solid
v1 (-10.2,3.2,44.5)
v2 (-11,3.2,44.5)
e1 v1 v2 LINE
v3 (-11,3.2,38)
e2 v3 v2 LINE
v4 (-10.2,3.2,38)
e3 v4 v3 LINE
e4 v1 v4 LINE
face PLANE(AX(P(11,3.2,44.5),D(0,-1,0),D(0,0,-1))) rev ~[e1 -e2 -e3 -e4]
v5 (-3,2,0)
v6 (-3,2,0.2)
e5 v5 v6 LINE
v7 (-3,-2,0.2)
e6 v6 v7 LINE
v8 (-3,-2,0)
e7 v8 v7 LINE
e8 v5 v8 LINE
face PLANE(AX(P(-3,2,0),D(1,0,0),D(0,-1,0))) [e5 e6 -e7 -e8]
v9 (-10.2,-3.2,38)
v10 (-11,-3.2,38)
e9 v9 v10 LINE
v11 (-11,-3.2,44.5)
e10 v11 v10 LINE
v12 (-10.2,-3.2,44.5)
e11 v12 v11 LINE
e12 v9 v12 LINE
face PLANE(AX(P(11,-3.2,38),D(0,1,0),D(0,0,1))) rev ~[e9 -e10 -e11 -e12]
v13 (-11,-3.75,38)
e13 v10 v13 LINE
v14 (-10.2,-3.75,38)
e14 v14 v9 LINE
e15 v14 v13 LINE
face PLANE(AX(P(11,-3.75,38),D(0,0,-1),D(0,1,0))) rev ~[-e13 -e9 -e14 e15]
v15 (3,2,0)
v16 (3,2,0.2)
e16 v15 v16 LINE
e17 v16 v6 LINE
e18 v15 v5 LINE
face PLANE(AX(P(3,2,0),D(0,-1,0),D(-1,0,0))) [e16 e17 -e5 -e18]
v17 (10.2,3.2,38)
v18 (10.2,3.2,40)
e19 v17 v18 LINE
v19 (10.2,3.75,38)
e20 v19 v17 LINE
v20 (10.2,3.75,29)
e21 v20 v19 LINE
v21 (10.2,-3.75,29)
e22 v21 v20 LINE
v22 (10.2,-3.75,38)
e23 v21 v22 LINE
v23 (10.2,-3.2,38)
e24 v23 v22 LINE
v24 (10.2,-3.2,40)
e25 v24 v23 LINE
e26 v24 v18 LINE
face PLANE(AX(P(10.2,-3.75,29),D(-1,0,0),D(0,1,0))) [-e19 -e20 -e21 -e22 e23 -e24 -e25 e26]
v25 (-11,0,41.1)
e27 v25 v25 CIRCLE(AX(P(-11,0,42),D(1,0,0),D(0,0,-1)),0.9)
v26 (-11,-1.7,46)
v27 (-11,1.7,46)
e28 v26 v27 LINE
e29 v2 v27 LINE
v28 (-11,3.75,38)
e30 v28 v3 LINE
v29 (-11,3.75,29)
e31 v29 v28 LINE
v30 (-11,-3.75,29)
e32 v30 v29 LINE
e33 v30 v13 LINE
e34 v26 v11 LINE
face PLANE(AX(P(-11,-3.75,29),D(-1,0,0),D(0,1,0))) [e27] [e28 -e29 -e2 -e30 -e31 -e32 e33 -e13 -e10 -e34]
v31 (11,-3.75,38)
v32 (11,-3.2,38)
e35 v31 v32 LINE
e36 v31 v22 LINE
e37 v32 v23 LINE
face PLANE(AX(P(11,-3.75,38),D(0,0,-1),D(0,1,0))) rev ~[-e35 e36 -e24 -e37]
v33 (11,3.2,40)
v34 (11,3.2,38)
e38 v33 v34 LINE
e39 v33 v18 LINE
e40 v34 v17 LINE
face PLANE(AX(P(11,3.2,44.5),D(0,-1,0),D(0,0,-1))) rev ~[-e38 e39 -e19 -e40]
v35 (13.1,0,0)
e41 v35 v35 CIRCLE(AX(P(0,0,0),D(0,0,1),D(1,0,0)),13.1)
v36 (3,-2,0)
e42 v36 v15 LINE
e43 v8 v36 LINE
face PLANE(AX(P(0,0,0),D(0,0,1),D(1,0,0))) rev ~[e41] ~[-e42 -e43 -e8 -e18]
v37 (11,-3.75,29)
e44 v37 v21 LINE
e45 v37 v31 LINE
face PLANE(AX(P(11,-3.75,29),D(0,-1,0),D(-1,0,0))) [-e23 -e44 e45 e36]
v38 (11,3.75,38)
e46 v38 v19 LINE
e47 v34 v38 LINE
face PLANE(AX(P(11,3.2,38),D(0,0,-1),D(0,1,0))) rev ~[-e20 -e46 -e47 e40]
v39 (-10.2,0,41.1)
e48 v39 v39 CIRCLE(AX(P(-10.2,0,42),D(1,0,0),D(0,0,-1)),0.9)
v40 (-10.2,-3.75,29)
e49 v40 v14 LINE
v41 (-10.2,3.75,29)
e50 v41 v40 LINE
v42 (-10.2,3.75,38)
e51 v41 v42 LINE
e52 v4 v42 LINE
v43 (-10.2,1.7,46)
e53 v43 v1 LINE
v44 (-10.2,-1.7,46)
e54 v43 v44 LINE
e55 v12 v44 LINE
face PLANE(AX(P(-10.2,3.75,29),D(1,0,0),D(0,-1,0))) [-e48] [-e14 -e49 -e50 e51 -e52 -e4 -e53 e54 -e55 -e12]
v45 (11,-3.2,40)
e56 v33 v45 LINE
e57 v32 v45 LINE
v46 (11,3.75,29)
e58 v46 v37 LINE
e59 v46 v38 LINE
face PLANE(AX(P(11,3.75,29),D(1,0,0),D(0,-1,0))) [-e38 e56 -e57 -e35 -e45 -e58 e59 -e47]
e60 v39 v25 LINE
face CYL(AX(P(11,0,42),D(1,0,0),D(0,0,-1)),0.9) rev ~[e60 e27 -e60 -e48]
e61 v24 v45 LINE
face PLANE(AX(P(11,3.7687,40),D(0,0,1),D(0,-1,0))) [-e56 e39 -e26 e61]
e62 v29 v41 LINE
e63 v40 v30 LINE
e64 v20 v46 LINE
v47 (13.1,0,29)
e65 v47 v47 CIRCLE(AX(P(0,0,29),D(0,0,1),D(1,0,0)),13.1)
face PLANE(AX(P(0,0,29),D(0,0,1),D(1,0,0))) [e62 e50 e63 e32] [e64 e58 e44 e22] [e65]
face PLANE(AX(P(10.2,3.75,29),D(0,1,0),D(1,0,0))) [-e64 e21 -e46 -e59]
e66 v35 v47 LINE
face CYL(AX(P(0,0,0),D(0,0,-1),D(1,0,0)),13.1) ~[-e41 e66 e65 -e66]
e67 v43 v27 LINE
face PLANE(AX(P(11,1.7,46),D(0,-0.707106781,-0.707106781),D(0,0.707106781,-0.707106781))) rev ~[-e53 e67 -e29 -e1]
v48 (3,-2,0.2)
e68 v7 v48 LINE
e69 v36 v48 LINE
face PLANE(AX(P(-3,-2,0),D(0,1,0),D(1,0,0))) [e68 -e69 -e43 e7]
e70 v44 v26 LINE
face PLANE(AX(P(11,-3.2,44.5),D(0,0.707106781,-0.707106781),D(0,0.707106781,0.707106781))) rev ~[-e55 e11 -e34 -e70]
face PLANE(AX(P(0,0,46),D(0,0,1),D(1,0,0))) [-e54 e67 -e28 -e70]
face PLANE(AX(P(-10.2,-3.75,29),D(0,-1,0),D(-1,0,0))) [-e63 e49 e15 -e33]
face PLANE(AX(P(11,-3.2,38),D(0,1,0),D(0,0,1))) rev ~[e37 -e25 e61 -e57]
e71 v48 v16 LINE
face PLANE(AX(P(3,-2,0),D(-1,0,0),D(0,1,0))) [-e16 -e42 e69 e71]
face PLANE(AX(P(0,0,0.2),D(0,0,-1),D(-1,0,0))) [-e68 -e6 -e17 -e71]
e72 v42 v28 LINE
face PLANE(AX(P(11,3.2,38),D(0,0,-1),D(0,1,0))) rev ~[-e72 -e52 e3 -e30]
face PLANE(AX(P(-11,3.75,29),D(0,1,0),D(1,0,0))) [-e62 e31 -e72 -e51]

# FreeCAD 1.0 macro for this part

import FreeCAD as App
import Part
import Sketcher
Q = App.Units.Quantity


def add_polygon(sketch, points):
    """Adds a closed chain of lines whose ends are joined by coincident constraints."""
    first, n = sketch.GeometryCount, len(points)
    for a, b in zip(points, points[1:] + points[:1]):
        sketch.addGeometry(Part.LineSegment(App.Vector(*a, 0), App.Vector(*b, 0)), False)
    for i in range(n):
        sketch.addConstraint(Sketcher.Constraint("Coincident", first + i, 2, first + (i + 1) % n, 1))

doc = App.newDocument("Part")
body = doc.addObject("PartDesign::Body", "Body")

# Sketch on XY plane
sketch1 = doc.addObject("Sketcher::SketchObject", "Sketch")
body.addObject(sketch1)
sketch1.AttachmentSupport = (doc.XY_Plane, [""])
sketch1.MapMode = "FlatFace"
sketch1.addGeometry(Part.Circle(App.Vector(0, 0, 0), App.Vector(0, 0, 1), 13), False)
sketch1.addConstraint([
    Sketcher.Constraint("Coincident", 0, 3, -1, 1),
    Sketcher.Constraint("Diameter", 0, Q("26.2 mm")),
])
pad1 = doc.addObject("PartDesign::Pad", "Pad")
body.addObject(pad1)
pad1.Profile = sketch1
pad1.Length = 29

# Sketch on XY plane
sketch2 = doc.addObject("Sketcher::SketchObject", "Sketch001")
body.addObject(sketch2)
sketch2.AttachmentSupport = (doc.XY_Plane, [""])
sketch2.MapMode = "FlatFace"
sketch2.AttachmentOffset = App.Placement(App.Vector(0, 0, 29), App.Rotation())
add_polygon(sketch2, [(-10.2, 3.8), (-11, 3.8), (-11, -3.8), (-10.2, -3.8)])  # lines 0-3
add_polygon(sketch2, [(11, 3.8), (10.2, 3.8), (10.2, -3.8), (11, -3.8)])  # lines 4-7
sketch2.addConstraint([
    Sketcher.Constraint("Horizontal", 0),
    Sketcher.Constraint("Vertical", 1),
    Sketcher.Constraint("Horizontal", 2),
    Sketcher.Constraint("Vertical", 3),
    Sketcher.Constraint("Horizontal", 4),
    Sketcher.Constraint("Vertical", 5),
    Sketcher.Constraint("Horizontal", 6),
    Sketcher.Constraint("Vertical", 7),
    Sketcher.Constraint("Symmetric", 2, 2, 4, 2, -1, 1),
    Sketcher.Constraint("Symmetric", 0, 2, 6, 2, -1, 1),
    Sketcher.Constraint("Horizontal", 3, 2, 4, 2),
    Sketcher.Constraint("DistanceX", 0, 2, 0, 1, Q("0.8 mm")),
    Sketcher.Constraint("DistanceY", 1, 2, 1, 1, Q("7.5 mm")),
    Sketcher.Constraint("DistanceX", 1, 2, 6, 2, Q("22 mm")),
])
pad2 = doc.addObject("PartDesign::Pad", "Pad001")
body.addObject(pad2)
pad2.Profile = sketch2
pad2.Length = 17

# Sketch on YZ plane
sketch3 = doc.addObject("Sketcher::SketchObject", "Sketch002")
body.addObject(sketch3)
sketch3.AttachmentSupport = (doc.YZ_Plane, [""])
sketch3.MapMode = "FlatFace"
sketch3.AttachmentOffset = App.Placement(App.Vector(0, 0, 11), App.Rotation())
add_polygon(sketch3, [(-3.8, 46), (-3.8, 38), (-3.2, 38), (-3.2, 44.5), (-1.7, 46)])  # lines 0-4
add_polygon(sketch3, [(3.8, 46), (1.7, 46), (3.2, 44.5), (3.2, 38), (3.8, 38)])  # lines 5-9
sketch3.addGeometry(Part.Circle(App.Vector(0, 42, 0), App.Vector(0, 0, 1), 0.9), False)  # 10
sketch3.addConstraint([
    Sketcher.Constraint("Vertical", 0),
    Sketcher.Constraint("Horizontal", 1),
    Sketcher.Constraint("Vertical", 2),
    Sketcher.Constraint("Horizontal", 4),
    Sketcher.Constraint("Horizontal", 5),
    Sketcher.Constraint("Vertical", 7),
    Sketcher.Constraint("Horizontal", 8),
    Sketcher.Constraint("Vertical", 9),
    Sketcher.Constraint("Symmetric", 3, 2, 5, 2, -2),
    Sketcher.Constraint("Symmetric", 2, 2, 6, 2, -2),
    Sketcher.Constraint("Symmetric", 0, 2, 8, 2, -2),
    Sketcher.Constraint("PointOnObject", 10, 3, -2),
    Sketcher.Constraint("Perpendicular", 3, 6),
    Sketcher.Constraint("Diameter", 10, Q("1.8 mm")),
    Sketcher.Constraint("DistanceY", 0, 2, 0, 1, Q("8 mm")),
    Sketcher.Constraint("DistanceY", 0, 2, 10, 3, Q("4 mm")),
    Sketcher.Constraint("DistanceX", 2, 2, 3, 2, Q("1.5 mm")),
    Sketcher.Constraint("DistanceX", 2, 2, 6, 2, Q("6.4 mm")),
    Sketcher.Constraint("DistanceY", -1, 1, 10, 3, Q("42 mm")),
    Sketcher.Constraint("DistanceX", 1, 1, 1, 2, Q("0.55 mm")),
])
pocket1 = doc.addObject("PartDesign::Pocket", "Pocket")
body.addObject(pocket1)
pocket1.Profile = sketch3
pocket1.Type = "ThroughAll"

# Sketch on XY plane
sketch4 = doc.addObject("Sketcher::SketchObject", "Sketch003")
body.addObject(sketch4)
sketch4.AttachmentSupport = (doc.XY_Plane, [""])
sketch4.MapMode = "FlatFace"
add_polygon(sketch4, [(-3, 2), (3, 2), (3, -2), (-3, -2)])  # lines 0-3
sketch4.addConstraint([
    Sketcher.Constraint("Horizontal", 0),
    Sketcher.Constraint("Vertical", 1),
    Sketcher.Constraint("Horizontal", 2),
    Sketcher.Constraint("Vertical", 3),
    Sketcher.Constraint("Symmetric", 0, 2, 2, 2, -1, 1),
    Sketcher.Constraint("DistanceX", 0, 1, 0, 2, Q("6 mm")),
    Sketcher.Constraint("DistanceY", 1, 2, 1, 1, Q("4 mm")),
])
pocket2 = doc.addObject("PartDesign::Pocket", "Pocket001")
body.addObject(pocket2)
pocket2.Profile = sketch4
pocket2.Length = 0.2
pocket2.Reversed = True

# Sketch on YZ plane
sketch5 = doc.addObject("Sketcher::SketchObject", "Sketch004")
body.addObject(sketch5)
sketch5.AttachmentSupport = (doc.YZ_Plane, [""])
sketch5.MapMode = "FlatFace"
sketch5.AttachmentOffset = App.Placement(App.Vector(0, 0, 11), App.Rotation())
add_polygon(sketch5, [(4, 40), (4, 46), (-4, 46), (-4, 40)])  # lines 0-3
sketch5.addConstraint([
    Sketcher.Constraint("Vertical", 0),
    Sketcher.Constraint("Horizontal", 1),
    Sketcher.Constraint("Vertical", 2),
    Sketcher.Constraint("Horizontal", 3),
    Sketcher.Constraint("DistanceY", 0, 1, 0, 2, Q("6 mm")),
    Sketcher.Constraint("DistanceY", -1, 1, 0, 2, Q("46 mm")),
    Sketcher.Constraint("DistanceX", 1, 2, 1, 1, Q("7.5374 mm")),
    Sketcher.Constraint("DistanceX", -1, 1, 0, 2, Q("3.7687 mm")),
])
pocket3 = doc.addObject("PartDesign::Pocket", "Pocket002")
body.addObject(pocket3)
pocket3.Profile = sketch5
pocket3.Length = 1

doc.recompute()
